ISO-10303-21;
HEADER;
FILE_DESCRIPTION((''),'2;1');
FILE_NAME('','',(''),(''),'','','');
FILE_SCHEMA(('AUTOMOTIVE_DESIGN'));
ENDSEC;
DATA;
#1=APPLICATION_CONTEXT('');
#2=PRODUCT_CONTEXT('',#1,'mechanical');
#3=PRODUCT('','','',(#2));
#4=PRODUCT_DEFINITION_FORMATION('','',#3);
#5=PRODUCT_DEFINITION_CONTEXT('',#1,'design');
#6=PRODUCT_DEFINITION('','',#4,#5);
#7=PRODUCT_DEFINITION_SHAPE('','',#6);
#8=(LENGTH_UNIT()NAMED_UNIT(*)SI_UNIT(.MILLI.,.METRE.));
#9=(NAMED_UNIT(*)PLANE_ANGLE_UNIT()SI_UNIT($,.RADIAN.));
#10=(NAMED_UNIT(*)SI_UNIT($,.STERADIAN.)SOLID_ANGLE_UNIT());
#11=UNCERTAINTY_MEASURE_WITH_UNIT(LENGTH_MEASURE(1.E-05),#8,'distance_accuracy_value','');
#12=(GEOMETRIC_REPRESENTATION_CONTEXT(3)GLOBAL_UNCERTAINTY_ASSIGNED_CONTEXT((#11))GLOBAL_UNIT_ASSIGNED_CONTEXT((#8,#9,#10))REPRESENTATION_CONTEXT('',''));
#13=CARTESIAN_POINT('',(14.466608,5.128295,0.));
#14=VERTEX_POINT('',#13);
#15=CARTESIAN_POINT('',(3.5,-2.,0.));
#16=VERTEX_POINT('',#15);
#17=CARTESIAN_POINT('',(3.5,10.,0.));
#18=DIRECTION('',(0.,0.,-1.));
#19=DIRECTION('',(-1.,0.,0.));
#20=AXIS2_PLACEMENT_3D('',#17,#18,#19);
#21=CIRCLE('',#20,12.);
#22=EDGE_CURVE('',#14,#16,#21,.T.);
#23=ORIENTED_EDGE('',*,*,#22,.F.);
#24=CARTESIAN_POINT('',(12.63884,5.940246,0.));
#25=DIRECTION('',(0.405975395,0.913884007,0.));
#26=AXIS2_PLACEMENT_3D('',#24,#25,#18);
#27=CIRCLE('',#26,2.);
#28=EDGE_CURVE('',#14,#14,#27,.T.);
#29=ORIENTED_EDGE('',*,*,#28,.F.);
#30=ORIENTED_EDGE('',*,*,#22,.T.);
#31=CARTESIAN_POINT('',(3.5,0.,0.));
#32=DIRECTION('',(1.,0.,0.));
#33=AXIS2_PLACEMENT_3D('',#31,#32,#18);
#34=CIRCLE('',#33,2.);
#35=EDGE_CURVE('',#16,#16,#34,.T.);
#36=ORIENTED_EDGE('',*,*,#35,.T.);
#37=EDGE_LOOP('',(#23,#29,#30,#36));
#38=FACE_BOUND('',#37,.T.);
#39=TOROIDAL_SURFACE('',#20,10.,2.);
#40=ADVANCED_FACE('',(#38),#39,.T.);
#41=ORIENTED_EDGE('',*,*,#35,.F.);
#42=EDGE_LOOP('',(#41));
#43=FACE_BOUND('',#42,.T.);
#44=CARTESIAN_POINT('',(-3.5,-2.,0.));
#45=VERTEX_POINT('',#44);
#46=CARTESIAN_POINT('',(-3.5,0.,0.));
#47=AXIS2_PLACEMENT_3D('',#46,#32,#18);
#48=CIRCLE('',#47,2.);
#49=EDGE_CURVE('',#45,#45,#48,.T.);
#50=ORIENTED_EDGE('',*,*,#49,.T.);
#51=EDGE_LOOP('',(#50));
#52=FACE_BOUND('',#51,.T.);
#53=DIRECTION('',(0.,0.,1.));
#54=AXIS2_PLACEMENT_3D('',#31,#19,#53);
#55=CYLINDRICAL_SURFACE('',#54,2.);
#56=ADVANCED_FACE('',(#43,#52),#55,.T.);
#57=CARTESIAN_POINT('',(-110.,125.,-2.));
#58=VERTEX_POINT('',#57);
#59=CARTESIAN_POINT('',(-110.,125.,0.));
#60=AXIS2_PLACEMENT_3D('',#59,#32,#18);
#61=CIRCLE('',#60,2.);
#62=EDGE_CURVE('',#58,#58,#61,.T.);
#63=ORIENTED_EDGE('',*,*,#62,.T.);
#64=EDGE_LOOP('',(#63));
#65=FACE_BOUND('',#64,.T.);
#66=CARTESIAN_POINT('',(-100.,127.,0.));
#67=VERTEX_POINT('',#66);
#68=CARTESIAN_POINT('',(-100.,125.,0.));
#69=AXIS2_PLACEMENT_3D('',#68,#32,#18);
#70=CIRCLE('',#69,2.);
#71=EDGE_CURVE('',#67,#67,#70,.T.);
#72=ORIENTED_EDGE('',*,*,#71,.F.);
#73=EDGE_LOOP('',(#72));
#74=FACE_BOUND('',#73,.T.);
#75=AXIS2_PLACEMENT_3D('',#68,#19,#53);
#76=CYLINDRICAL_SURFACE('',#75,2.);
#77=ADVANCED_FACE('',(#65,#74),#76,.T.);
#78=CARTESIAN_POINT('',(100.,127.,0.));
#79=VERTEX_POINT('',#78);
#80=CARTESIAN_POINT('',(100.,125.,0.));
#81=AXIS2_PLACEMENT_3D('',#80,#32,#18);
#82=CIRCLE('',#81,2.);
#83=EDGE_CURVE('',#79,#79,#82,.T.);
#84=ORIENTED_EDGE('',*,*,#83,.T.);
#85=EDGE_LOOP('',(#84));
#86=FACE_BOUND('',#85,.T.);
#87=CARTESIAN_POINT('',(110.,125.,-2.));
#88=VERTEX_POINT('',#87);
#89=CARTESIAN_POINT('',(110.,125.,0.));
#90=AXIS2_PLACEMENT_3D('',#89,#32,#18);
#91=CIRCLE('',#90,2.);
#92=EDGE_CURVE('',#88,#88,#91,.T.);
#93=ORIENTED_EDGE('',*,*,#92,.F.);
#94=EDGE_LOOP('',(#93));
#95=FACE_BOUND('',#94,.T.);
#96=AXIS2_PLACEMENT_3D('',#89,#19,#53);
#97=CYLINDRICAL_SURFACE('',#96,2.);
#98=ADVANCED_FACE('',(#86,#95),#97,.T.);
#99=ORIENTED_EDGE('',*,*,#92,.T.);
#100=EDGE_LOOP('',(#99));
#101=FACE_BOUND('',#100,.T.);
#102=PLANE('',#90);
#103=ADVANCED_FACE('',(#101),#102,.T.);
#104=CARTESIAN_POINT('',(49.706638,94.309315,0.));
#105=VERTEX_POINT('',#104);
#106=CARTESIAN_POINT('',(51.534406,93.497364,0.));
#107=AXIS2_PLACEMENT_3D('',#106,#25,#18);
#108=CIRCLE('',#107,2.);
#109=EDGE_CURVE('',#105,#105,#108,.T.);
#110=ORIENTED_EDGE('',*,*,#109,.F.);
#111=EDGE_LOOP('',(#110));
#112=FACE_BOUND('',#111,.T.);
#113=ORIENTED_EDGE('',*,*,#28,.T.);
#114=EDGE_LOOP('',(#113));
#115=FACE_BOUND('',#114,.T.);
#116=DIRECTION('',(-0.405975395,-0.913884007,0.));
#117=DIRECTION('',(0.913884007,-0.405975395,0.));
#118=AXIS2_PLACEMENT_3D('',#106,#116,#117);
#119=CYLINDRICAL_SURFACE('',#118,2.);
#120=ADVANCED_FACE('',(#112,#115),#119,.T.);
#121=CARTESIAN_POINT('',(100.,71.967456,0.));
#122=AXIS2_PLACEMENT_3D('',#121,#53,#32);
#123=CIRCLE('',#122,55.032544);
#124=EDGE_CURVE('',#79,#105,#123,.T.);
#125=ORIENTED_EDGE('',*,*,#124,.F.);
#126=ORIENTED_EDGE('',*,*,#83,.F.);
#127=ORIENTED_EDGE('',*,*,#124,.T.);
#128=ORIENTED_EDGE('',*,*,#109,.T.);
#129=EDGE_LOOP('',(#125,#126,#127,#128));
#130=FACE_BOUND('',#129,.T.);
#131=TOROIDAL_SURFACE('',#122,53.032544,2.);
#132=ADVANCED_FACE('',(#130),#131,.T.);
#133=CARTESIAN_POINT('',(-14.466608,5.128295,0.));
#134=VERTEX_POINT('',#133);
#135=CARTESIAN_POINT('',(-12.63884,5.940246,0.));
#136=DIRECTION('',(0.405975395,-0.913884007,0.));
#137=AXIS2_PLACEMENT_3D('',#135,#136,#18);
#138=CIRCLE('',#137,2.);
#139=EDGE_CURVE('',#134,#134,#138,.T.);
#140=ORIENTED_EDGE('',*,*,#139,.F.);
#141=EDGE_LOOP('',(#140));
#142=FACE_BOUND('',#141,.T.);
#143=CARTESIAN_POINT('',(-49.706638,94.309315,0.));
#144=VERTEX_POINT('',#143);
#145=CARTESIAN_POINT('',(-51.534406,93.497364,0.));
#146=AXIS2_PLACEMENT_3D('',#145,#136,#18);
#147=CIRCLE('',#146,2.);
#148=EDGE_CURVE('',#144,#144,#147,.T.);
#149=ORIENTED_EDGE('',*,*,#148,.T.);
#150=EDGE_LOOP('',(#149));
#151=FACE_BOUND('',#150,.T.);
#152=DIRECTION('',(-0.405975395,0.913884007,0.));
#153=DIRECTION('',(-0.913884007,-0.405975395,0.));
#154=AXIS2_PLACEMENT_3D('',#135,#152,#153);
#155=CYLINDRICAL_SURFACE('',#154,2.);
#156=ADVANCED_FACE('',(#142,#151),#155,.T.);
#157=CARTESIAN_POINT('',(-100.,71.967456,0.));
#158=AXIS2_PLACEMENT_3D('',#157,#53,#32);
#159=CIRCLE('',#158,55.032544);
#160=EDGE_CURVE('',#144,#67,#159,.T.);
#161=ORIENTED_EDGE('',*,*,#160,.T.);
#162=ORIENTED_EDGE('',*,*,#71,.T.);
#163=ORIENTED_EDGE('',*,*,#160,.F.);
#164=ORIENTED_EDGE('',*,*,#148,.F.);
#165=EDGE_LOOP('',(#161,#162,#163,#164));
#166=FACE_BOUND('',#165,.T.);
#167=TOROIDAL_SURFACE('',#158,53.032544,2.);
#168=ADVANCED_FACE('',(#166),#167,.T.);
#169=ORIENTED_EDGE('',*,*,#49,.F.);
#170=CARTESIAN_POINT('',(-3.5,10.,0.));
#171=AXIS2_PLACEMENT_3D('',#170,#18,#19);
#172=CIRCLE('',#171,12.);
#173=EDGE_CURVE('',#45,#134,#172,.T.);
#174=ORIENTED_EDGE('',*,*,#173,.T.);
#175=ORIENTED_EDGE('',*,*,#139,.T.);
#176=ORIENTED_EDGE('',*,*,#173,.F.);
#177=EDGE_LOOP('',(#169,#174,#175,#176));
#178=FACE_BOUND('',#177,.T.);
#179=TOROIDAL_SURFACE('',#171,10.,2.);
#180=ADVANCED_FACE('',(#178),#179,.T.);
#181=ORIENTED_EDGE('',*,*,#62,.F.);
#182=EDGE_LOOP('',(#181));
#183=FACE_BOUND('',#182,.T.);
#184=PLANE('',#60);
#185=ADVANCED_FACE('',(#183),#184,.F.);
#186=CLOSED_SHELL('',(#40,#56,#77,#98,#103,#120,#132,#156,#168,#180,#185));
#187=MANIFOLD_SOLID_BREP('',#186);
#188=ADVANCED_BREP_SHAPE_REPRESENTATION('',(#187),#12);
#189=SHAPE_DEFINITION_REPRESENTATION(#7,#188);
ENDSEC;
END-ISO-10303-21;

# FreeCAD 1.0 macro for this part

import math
import FreeCAD as App
import Part
import Sketcher
Q = App.Units.Quantity

doc = App.newDocument("Part")
body = doc.addObject("PartDesign::Body", "Body")

# Sketch on YZ plane
sketch1 = doc.addObject("Sketcher::SketchObject", "Sketch")
body.addObject(sketch1)
sketch1.AttachmentSupport = (doc.YZ_Plane, [""])
sketch1.MapMode = "FlatFace"
sketch1.AttachmentOffset = App.Placement(App.Vector(0, 0, -110), App.Rotation())
sketch1.addGeometry(Part.Circle(App.Vector(125, 0, 0), App.Vector(0, 0, 1), 2), False)
sketch1.addConstraint(Sketcher.Constraint("PointOnObject", 0, 3, -1))
sketch1.addConstraint(Sketcher.Constraint("Diameter", 0, Q("4 mm")))
sketch1.addConstraint(Sketcher.Constraint("DistanceX", -1, 1, 0, 3, Q("125 mm")))

# Sketch on XY plane
sketch2 = doc.addObject("Sketcher::SketchObject", "Sketch001")
body.addObject(sketch2)
sketch2.AttachmentSupport = (doc.XY_Plane, [""])
sketch2.MapMode = "FlatFace"
sketch2.addGeometry(Part.LineSegment(App.Vector(110, 125, 0), App.Vector(100, 125, 0)), False)
sketch2.addGeometry(Part.ArcOfCircle(Part.Circle(App.Vector(100, 72, 0), App.Vector(0, 0, 1), 53), math.radians(90), math.radians(156)), False)
sketch2.addGeometry(Part.LineSegment(App.Vector(52, 93, 0), App.Vector(13, 6, 0)), False)
sketch2.addGeometry(Part.ArcOfCircle(Part.Circle(App.Vector(4, 10, 0), App.Vector(0, 0, 1), 10), math.radians(-90), math.radians(-24)), False)
sketch2.addGeometry(Part.LineSegment(App.Vector(4, 0, 0), App.Vector(-4, 0, 0)), False)
sketch2.addGeometry(Part.ArcOfCircle(Part.Circle(App.Vector(-4, 10, 0), App.Vector(0, 0, 1), 10), math.radians(-156), math.radians(-90)), False)
sketch2.addGeometry(Part.LineSegment(App.Vector(-13, 6, 0), App.Vector(-52, 93, 0)), False)
sketch2.addGeometry(Part.ArcOfCircle(Part.Circle(App.Vector(-100, 72, 0), App.Vector(0, 0, 1), 53), math.radians(24), math.radians(90)), False)
sketch2.addGeometry(Part.LineSegment(App.Vector(-100, 125, 0), App.Vector(-110, 125, 0)), False)
sketch2.addConstraint(Sketcher.Constraint("Tangent", 0, 2, 1, 1))
sketch2.addConstraint(Sketcher.Constraint("Tangent", 1, 2, 2, 1))
sketch2.addConstraint(Sketcher.Constraint("Tangent", 2, 2, 3, 2))
sketch2.addConstraint(Sketcher.Constraint("Tangent", 3, 1, 4, 1))
sketch2.addConstraint(Sketcher.Constraint("Tangent", 4, 2, 5, 2))
sketch2.addConstraint(Sketcher.Constraint("Tangent", 5, 1, 6, 1))
sketch2.addConstraint(Sketcher.Constraint("Tangent", 6, 2, 7, 1))
sketch2.addConstraint(Sketcher.Constraint("Tangent", 7, 2, 8, 1))
sketch2.addConstraint(Sketcher.Constraint("Horizontal", 0))
sketch2.addConstraint(Sketcher.Constraint("Horizontal", 4))
sketch2.addConstraint(Sketcher.Constraint("Horizontal", 8))
sketch2.addConstraint(Sketcher.Constraint("Equal", 3, 5))
sketch2.addConstraint(Sketcher.Constraint("Equal", 1, 7))
sketch2.addConstraint(Sketcher.Constraint("Symmetric", 3, 1, 4, 2, -1, 1))
sketch2.addConstraint(Sketcher.Constraint("Symmetric", 1, 3, 7, 3, -2))
sketch2.addConstraint(Sketcher.Constraint("Equal", 0, 8))
sketch2.addConstraint(Sketcher.Constraint("Radius", 3, Q("10 mm")))
sketch2.addConstraint(Sketcher.Constraint("DistanceX", 0, 2, 0, 1, Q("10 mm")))
sketch2.addConstraint(Sketcher.Constraint("DistanceX", 4, 2, 4, 1, Q("7 mm")))
sketch2.addConstraint(Sketcher.Constraint("DistanceX", -1, 1, 1, 3, Q("100 mm")))
sketch2.addConstraint(Sketcher.Constraint("DistanceY", -1, 1, 0, 1, Q("125 mm")))
sketch2.addConstraint(Sketcher.Constraint("Radius", 1, Q("53.032544 mm")))
doc.recompute()

additivepipe = doc.addObject("PartDesign::AdditivePipe", "AdditivePipe")
body.addObject(additivepipe)
additivepipe.Profile = sketch1
additivepipe.Spine = (sketch2, ["Edge1", "Edge2", "Edge3", "Edge4", "Edge5", "Edge6", "Edge7", "Edge8", "Edge9"])

doc.recompute()
